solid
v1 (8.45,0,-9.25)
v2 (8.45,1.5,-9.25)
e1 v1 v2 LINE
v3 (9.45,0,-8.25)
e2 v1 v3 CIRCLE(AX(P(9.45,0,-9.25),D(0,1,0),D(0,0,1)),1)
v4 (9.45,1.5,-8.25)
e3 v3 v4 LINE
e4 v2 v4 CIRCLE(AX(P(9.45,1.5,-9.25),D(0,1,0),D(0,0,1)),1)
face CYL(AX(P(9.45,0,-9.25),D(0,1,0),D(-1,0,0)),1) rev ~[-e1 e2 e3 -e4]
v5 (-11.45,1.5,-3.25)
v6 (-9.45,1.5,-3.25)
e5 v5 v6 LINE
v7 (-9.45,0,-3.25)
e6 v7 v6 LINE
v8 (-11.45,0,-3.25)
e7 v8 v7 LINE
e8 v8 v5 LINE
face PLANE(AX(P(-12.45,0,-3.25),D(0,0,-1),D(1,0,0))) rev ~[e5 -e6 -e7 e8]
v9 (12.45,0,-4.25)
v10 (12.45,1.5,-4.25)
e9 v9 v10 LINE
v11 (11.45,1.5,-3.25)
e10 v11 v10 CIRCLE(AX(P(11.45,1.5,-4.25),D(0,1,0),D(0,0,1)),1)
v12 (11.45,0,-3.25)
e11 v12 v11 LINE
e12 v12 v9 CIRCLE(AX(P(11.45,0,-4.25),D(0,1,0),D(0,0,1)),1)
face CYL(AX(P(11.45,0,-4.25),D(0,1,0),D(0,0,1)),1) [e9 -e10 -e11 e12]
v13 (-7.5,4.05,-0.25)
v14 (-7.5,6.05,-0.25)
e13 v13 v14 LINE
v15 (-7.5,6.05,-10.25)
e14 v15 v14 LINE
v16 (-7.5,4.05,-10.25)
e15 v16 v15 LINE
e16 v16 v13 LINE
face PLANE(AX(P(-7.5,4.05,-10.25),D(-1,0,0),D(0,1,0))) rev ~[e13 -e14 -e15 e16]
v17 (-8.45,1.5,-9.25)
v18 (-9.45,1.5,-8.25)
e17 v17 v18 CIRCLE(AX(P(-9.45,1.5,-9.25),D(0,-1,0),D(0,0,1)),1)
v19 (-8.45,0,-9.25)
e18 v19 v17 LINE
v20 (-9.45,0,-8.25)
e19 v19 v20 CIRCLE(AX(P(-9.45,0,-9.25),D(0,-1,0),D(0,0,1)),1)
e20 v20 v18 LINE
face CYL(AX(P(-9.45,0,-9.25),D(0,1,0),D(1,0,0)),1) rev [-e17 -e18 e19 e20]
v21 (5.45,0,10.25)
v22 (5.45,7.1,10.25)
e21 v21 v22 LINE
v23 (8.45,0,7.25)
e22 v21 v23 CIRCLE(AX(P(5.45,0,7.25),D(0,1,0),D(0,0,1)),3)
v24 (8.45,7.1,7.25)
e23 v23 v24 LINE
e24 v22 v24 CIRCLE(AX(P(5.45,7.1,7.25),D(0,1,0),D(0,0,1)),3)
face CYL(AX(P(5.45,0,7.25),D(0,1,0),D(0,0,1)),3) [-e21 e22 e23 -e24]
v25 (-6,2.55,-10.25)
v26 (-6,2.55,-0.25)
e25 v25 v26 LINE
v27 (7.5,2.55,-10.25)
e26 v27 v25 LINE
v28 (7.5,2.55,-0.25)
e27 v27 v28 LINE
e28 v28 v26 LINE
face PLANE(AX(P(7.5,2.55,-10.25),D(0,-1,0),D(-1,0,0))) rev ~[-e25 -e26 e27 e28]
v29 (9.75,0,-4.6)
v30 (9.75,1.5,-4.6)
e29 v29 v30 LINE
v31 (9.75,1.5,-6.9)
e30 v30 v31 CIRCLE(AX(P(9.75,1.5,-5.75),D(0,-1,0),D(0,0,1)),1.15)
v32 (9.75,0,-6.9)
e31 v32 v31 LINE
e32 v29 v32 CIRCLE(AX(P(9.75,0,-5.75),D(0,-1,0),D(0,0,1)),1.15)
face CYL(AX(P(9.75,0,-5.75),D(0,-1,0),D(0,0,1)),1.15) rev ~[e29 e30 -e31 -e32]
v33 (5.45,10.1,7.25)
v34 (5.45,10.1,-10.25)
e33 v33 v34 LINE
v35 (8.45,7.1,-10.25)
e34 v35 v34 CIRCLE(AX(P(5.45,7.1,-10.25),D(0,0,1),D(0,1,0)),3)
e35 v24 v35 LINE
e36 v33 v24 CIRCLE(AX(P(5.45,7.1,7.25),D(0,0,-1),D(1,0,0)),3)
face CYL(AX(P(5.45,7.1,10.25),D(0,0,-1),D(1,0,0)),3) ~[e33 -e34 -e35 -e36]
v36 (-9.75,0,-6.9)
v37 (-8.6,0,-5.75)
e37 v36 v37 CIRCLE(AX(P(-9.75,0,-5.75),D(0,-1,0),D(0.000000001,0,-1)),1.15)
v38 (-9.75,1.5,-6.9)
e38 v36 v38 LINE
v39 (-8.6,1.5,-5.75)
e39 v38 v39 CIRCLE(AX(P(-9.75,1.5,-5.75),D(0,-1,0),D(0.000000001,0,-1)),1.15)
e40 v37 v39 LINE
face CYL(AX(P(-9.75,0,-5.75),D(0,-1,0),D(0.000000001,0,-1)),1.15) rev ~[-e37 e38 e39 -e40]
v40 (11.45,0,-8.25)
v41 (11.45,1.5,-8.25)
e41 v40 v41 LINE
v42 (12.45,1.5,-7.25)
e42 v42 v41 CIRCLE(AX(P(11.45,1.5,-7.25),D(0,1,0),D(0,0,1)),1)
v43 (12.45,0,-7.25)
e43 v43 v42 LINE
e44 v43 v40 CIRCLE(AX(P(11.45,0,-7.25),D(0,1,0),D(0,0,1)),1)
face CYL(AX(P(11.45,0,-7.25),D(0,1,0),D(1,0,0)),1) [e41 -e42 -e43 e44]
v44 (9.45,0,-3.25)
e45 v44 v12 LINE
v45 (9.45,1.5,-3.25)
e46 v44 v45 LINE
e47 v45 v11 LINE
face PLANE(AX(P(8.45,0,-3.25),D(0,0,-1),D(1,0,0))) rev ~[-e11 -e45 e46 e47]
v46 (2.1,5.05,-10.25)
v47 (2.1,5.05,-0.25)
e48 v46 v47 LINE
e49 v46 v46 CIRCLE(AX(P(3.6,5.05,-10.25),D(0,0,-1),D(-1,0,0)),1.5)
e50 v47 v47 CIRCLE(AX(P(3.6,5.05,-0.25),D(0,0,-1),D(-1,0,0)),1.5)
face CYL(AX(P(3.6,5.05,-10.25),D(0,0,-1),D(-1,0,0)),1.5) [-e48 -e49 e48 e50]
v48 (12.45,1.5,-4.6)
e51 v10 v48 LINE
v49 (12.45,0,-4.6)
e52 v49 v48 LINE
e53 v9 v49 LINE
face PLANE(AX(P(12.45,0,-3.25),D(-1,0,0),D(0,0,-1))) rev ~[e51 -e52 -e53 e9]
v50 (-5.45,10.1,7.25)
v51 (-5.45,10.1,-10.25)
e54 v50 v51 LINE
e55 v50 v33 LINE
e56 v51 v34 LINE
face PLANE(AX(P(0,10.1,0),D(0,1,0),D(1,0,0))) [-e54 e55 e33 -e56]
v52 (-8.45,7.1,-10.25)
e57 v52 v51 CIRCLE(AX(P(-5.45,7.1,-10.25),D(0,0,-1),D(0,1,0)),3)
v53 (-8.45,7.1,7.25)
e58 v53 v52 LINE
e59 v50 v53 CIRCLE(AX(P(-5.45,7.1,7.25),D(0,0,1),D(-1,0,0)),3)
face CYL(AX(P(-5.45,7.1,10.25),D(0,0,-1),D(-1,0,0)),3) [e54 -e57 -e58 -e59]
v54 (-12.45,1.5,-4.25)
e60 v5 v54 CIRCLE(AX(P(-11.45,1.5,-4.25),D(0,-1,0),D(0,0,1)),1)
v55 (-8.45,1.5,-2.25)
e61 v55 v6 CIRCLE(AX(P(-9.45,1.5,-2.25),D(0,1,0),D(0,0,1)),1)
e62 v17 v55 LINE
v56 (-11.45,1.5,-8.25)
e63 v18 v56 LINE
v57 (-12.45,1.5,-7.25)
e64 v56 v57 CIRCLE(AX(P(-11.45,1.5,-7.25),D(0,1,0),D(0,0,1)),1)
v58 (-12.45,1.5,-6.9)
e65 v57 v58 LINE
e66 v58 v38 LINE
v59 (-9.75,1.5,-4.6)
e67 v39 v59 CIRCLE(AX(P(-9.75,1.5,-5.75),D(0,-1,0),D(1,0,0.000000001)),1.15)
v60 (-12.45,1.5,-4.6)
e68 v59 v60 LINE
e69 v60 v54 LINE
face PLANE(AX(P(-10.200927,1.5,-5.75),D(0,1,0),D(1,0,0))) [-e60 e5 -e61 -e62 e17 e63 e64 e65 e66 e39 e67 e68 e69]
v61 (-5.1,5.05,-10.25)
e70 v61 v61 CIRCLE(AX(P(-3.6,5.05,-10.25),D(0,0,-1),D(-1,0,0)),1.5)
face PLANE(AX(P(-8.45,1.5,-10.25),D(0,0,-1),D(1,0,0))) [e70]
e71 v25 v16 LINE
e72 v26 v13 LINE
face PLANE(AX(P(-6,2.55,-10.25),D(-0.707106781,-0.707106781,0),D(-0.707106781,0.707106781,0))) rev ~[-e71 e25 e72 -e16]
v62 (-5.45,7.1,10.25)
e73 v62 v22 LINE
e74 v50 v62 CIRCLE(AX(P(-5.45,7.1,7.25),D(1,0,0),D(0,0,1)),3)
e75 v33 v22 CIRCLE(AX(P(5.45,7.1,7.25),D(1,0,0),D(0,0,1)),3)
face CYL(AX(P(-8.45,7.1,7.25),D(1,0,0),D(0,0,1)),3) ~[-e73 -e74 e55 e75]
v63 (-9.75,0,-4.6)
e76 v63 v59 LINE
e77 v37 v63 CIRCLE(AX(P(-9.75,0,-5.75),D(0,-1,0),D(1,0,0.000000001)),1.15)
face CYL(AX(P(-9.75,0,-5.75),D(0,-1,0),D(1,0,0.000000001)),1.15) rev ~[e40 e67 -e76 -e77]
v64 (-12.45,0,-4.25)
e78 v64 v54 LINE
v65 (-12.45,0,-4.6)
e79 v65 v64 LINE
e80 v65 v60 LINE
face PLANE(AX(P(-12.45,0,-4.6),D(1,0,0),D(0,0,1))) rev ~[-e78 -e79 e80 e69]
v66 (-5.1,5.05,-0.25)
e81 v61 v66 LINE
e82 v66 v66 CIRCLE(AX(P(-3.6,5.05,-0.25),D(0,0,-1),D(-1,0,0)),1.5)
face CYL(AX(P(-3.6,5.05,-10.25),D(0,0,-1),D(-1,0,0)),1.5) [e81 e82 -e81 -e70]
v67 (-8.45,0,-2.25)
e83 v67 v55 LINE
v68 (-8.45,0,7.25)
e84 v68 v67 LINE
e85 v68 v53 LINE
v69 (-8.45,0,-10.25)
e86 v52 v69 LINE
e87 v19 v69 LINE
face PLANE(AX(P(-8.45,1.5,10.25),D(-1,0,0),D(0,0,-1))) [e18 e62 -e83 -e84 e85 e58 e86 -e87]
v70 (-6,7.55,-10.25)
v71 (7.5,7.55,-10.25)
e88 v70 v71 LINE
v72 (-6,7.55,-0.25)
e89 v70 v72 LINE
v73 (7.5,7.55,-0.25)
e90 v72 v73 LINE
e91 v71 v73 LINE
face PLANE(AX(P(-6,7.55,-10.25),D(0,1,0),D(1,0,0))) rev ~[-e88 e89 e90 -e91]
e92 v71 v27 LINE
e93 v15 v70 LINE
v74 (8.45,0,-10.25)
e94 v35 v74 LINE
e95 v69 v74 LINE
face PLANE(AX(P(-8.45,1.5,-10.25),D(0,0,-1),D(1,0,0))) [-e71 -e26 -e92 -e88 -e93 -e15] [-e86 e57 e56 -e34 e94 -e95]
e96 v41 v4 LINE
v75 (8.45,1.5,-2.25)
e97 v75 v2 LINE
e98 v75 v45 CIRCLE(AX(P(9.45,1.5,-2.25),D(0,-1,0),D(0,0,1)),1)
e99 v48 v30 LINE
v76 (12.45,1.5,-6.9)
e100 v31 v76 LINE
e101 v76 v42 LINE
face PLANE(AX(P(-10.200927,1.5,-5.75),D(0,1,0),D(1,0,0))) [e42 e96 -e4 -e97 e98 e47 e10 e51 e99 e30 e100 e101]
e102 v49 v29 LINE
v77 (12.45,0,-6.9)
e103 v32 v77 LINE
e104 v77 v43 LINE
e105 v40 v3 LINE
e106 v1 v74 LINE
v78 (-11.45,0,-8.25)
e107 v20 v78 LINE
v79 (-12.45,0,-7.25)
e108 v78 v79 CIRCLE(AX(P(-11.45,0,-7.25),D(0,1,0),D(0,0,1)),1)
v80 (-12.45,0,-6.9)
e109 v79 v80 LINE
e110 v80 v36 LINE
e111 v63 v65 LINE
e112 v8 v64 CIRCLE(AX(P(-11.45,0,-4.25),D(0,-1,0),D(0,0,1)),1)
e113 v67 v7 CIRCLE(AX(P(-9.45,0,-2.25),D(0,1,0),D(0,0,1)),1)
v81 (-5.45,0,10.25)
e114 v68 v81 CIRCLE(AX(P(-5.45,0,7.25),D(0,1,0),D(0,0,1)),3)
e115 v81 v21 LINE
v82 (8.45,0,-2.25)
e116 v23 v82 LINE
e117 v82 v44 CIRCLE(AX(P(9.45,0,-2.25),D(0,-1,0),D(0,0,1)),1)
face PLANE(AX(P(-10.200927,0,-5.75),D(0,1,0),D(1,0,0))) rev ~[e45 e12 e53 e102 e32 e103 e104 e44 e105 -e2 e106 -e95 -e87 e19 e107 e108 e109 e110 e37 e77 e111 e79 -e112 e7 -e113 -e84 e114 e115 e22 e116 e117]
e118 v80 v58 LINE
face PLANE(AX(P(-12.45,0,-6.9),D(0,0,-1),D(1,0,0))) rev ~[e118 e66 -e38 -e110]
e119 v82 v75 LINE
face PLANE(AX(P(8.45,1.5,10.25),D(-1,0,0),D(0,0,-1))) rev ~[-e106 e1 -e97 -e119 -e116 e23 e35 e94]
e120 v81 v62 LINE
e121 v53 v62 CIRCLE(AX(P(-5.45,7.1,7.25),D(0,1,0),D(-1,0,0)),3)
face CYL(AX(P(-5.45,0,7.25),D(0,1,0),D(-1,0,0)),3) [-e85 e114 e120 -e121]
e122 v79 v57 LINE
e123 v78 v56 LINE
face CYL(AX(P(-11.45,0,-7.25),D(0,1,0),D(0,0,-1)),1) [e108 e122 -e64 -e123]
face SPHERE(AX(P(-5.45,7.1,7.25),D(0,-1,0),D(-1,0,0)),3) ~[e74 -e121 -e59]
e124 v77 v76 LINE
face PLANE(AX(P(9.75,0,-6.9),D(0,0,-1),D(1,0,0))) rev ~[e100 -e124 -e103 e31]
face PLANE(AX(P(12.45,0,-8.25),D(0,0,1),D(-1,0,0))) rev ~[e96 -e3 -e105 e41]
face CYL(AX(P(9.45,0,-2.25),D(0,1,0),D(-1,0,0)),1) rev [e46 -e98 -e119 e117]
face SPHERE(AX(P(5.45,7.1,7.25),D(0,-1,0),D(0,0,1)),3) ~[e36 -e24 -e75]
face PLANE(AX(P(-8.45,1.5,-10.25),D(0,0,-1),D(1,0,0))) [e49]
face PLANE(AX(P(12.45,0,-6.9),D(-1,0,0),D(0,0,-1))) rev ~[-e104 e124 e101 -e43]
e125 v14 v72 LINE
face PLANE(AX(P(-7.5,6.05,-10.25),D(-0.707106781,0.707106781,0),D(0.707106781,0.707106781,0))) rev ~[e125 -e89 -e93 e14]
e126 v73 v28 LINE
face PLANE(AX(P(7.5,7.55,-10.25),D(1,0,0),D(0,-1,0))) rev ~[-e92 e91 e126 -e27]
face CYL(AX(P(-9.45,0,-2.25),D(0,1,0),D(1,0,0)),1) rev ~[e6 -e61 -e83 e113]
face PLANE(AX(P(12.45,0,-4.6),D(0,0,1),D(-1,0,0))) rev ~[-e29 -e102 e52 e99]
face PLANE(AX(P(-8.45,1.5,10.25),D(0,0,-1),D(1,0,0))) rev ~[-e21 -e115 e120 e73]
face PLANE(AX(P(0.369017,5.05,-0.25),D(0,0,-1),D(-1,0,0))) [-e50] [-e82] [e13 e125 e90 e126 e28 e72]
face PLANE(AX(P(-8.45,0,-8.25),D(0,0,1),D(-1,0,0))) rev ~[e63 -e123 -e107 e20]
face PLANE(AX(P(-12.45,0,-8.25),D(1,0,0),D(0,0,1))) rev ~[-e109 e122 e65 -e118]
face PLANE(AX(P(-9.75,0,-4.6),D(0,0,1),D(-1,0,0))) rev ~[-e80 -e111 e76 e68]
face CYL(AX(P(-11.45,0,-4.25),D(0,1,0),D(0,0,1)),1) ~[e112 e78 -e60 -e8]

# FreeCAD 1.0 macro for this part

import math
import FreeCAD as App
import Part
import Sketcher
Q = App.Units.Quantity


def edges_at(feature, points):
    """Names of the edges that pass closest to the given points."""
    edges = feature.Shape.Edges
    near = lambda p: min(range(len(edges)), key=lambda i: edges[i].distToShape(Part.Vertex(*p))[0])
    return sorted({f"Edge{near(p) + 1}" for p in points})

doc = App.newDocument("Part")
params = doc.addObject("Spreadsheet::Sheet", "Params")
for row, (alias, value) in enumerate([
    ("sketch1_width", "4 mm"),
    ("sketch1_height", "2 mm"),
    ("sketch1_radius", "1.15 mm"),
    ("sketch1_width2", "2.7 mm"),
    ("sketch1_width3", "16.9 mm"),
    ("pad1_length", "1.5 mm"),
    ("sketch2_width", "16.9 mm"),
    ("sketch2_height", "20.5 mm"),
    ("pad2_length", "8.6 mm"),
    ("fillet_radius", "3 mm"),
    ("fillet2_radius", "1 mm"),
    ("sketch3_diameter", "3 mm"),
    ("sketch3_height", "2 mm"),
    ("sketch3_height2", "5 mm"),
    ("sketch3_width", "13.5 mm"),
    ("pocket1_length", "10 mm"),
], start=1):
    params.set(f"A{row}", alias)
    params.set(f"B{row}", "=" + value)
    params.setAlias(f"B{row}", alias)

body = doc.addObject("PartDesign::Body", "Body")

sketch1 = body.newObject("Sketcher::SketchObject", "Sketch")
sketch1.AttachmentSupport = (doc.getObject("XZ_Plane"), [""])
sketch1.MapMode = "FlatFace"
sketch1.addGeometry([
    Part.LineSegment(App.Vector(-8.4, -8.2, 0), App.Vector(-12.4, -8.2, 0)),
    Part.LineSegment(App.Vector(-12.4, -8.2, 0), App.Vector(-12.4, -6.9, 0)),
    Part.LineSegment(App.Vector(-12.4, -6.9, 0), App.Vector(-9.8, -6.9, 0)),
    Part.ArcOfCircle(Part.Circle(App.Vector(-9.8, -5.7, 0), App.Vector(0, 0, 1), 1.2), math.radians(-90), math.radians(0)),
    Part.ArcOfCircle(Part.Circle(App.Vector(-9.8, -5.8, 0), App.Vector(0, 0, 1), 1.2), math.radians(0), math.radians(90)),
    Part.LineSegment(App.Vector(-9.8, -4.6, 0), App.Vector(-12.4, -4.6, 0)),
    Part.LineSegment(App.Vector(-12.4, -4.6, 0), App.Vector(-12.4, -3.2, 0)),
    Part.LineSegment(App.Vector(-12.4, -3.2, 0), App.Vector(-8.4, -3.2, 0)),
    Part.LineSegment(App.Vector(-8.4, -3.2, 0), App.Vector(-8.4, 10.2, 0)),
    Part.LineSegment(App.Vector(-8.4, 10.2, 0), App.Vector(8.4, 10.2, 0)),
    Part.LineSegment(App.Vector(8.4, 10.2, 0), App.Vector(8.4, -3.2, 0)),
    Part.LineSegment(App.Vector(8.4, -3.2, 0), App.Vector(12.4, -3.2, 0)),
    Part.LineSegment(App.Vector(12.4, -3.2, 0), App.Vector(12.4, -4.6, 0)),
    Part.LineSegment(App.Vector(12.4, -4.6, 0), App.Vector(9.8, -4.6, 0)),
    Part.ArcOfCircle(Part.Circle(App.Vector(9.8, -5.8, 0), App.Vector(0, 0, 1), 1.1), math.radians(90), math.radians(270)),
    Part.LineSegment(App.Vector(9.8, -6.9, 0), App.Vector(12.4, -6.9, 0)),
    Part.LineSegment(App.Vector(12.4, -6.9, 0), App.Vector(12.4, -8.2, 0)),
    Part.LineSegment(App.Vector(12.4, -8.2, 0), App.Vector(8.4, -8.2, 0)),
    Part.LineSegment(App.Vector(8.4, -8.2, 0), App.Vector(8.4, -10.2, 0)),
    Part.LineSegment(App.Vector(8.4, -10.2, 0), App.Vector(-8.4, -10.2, 0)),
    Part.LineSegment(App.Vector(-8.4, -10.2, 0), App.Vector(-8.4, -8.2, 0)),
], False)
sketch1.addConstraint([
    Sketcher.Constraint("Coincident", 0, 2, 1, 1),
    Sketcher.Constraint("Coincident", 1, 2, 2, 1),
    Sketcher.Constraint("Tangent", 2, 2, 3, 1),
    Sketcher.Constraint("Tangent", 3, 2, 4, 1),
    Sketcher.Constraint("Tangent", 4, 2, 5, 1),
    Sketcher.Constraint("Coincident", 5, 2, 6, 1),
    Sketcher.Constraint("Coincident", 6, 2, 7, 1),
    Sketcher.Constraint("Coincident", 7, 2, 8, 1),
    Sketcher.Constraint("Coincident", 8, 2, 9, 1),
    Sketcher.Constraint("Coincident", 9, 2, 10, 1),
    Sketcher.Constraint("Coincident", 10, 2, 11, 1),
    Sketcher.Constraint("Coincident", 11, 2, 12, 1),
    Sketcher.Constraint("Coincident", 12, 2, 13, 1),
    Sketcher.Constraint("Tangent", 13, 2, 14, 1),
    Sketcher.Constraint("Tangent", 14, 2, 15, 1),
    Sketcher.Constraint("Coincident", 15, 2, 16, 1),
    Sketcher.Constraint("Coincident", 16, 2, 17, 1),
    Sketcher.Constraint("Coincident", 17, 2, 18, 1),
    Sketcher.Constraint("Coincident", 18, 2, 19, 1),
    Sketcher.Constraint("Coincident", 19, 2, 20, 1),
    Sketcher.Constraint("Coincident", 20, 2, 0, 1),
    Sketcher.Constraint("Horizontal", 0),
    Sketcher.Constraint("Vertical", 1),
    Sketcher.Constraint("Horizontal", 2),
    Sketcher.Constraint("Horizontal", 5),
    Sketcher.Constraint("Vertical", 6),
    Sketcher.Constraint("Horizontal", 7),
    Sketcher.Constraint("Vertical", 8),
    Sketcher.Constraint("Horizontal", 9),
    Sketcher.Constraint("Vertical", 10),
    Sketcher.Constraint("Horizontal", 11),
    Sketcher.Constraint("Vertical", 12),
    Sketcher.Constraint("Horizontal", 13),
    Sketcher.Constraint("Horizontal", 15),
    Sketcher.Constraint("Vertical", 16),
    Sketcher.Constraint("Horizontal", 17),
    Sketcher.Constraint("Vertical", 18),
    Sketcher.Constraint("Horizontal", 19),
    Sketcher.Constraint("Vertical", 20),
    Sketcher.Constraint("Equal", 3, 4),
    Sketcher.Constraint("Equal", 4, 14),
    Sketcher.Constraint("Symmetric", 8, 2, 18, 2, -1, 1),
    Sketcher.Constraint("Symmetric", 3, 3, 14, 3, -2),
    Sketcher.Constraint("Symmetric", 7, 2, 10, 2, -2),
    Sketcher.Constraint("Symmetric", 0, 2, 16, 2, -2),
    Sketcher.Constraint("Horizontal", 14, 3, 3, 2),
    Sketcher.Constraint("Vertical", 1, 2, 5, 2),
    Sketcher.Constraint("Vertical", 12, 2, 15, 2),
    Sketcher.Constraint("Vertical", 8, 2, 19, 2),
    Sketcher.Constraint("Equal", 1, 6),
    Sketcher.Constraint("DistanceX", 0, 2, 0, 1, Q("4 mm")),
    Sketcher.Constraint("DistanceY", 18, 2, 18, 1, Q("2 mm")),
    Sketcher.Constraint("Radius", 3, Q("1.15 mm")),
    Sketcher.Constraint("DistanceX", 2, 1, 2, 2, Q("2.7 mm")),
    Sketcher.Constraint("DistanceX", 9, 1, 9, 2, Q("16.9 mm")),
    Sketcher.Constraint("DistanceY", 8, 1, 8, 2, Q("13.5 mm")),
    Sketcher.Constraint("DistanceY", 3, 2, 8, 2, Q("16 mm")),
])
sketch1.setExpression("Constraints[50]", "Params.sketch1_width")
sketch1.setExpression("Constraints[51]", "Params.sketch1_height")
sketch1.setExpression("Constraints[52]", "Params.sketch1_radius")
sketch1.setExpression("Constraints[53]", "Params.sketch1_width2")
sketch1.setExpression("Constraints[54]", "Params.sketch1_width3")
pad1 = body.newObject("PartDesign::Pad", "Pad")
pad1.Profile = sketch1
pad1.setExpression("Length", "Params.pad1_length")
pad1.Reversed = True

sketch2 = body.newObject("Sketcher::SketchObject", "Sketch001")
sketch2.AttachmentSupport = (doc.getObject("XZ_Plane"), [""])
sketch2.MapMode = "FlatFace"
sketch2.AttachmentOffset = App.Placement(App.Vector(0, 0, -1.5), App.Rotation())
sketch2.addGeometry([
    Part.LineSegment(App.Vector(-8, -10, 0), App.Vector(-8, 10, 0)),
    Part.LineSegment(App.Vector(-8, 10, 0), App.Vector(8, 10, 0)),
    Part.LineSegment(App.Vector(8, 10, 0), App.Vector(8, -10, 0)),
    Part.LineSegment(App.Vector(8, -10, 0), App.Vector(-8, -10, 0)),
], False)
sketch2.addConstraint([
    Sketcher.Constraint("Coincident", 0, 2, 1, 1),
    Sketcher.Constraint("Coincident", 1, 2, 2, 1),
    Sketcher.Constraint("Coincident", 2, 2, 3, 1),
    Sketcher.Constraint("Coincident", 3, 2, 0, 1),
    Sketcher.Constraint("Vertical", 0),
    Sketcher.Constraint("Horizontal", 1),
    Sketcher.Constraint("Vertical", 2),
    Sketcher.Constraint("Horizontal", 3),
    Sketcher.Constraint("Symmetric", 0, 2, 2, 2, -1, 1),
    Sketcher.Constraint("DistanceX", 1, 1, 1, 2, Q("16.9 mm")),
    Sketcher.Constraint("DistanceY", 0, 1, 0, 2, Q("20.5 mm")),
])
sketch2.setExpression("Constraints[9]", "Params.sketch2_width")
sketch2.setExpression("Constraints[10]", "Params.sketch2_height")
pad2 = body.newObject("PartDesign::Pad", "Pad001")
pad2.Profile = sketch2
pad2.setExpression("Length", "Params.pad2_length")
pad2.Reversed = True
doc.recompute()

fillet = body.newObject("PartDesign::Fillet", "Fillet")
fillet.Base = (pad2, edges_at(pad2, [
    (8.45, 5.05, 10.25),
    (-8.45, 5.05, 10.25),
    (-8.45, 10.1, 0),
    (0, 10.1, 10.25),
    (8.45, 10.1, 0),
]))
fillet.setExpression("Radius", "Params.fillet_radius")
doc.recompute()

fillet2 = body.newObject("PartDesign::Fillet", "Fillet001")
fillet2.Base = (fillet, edges_at(fillet, [
    (-12.45, 0.75, -8.25),
    (-8.45, 0.75, -8.25),
    (8.45, 0.75, -8.25),
    (12.45, 0.75, -8.25),
    (12.45, 0.75, -3.25),
    (8.45, 0.75, -3.25),
    (-8.45, 0.75, -3.25),
    (-12.45, 0.75, -3.25),
]))
fillet2.setExpression("Radius", "Params.fillet2_radius")

sketch3 = body.newObject("Sketcher::SketchObject", "Sketch002")
sketch3.AttachmentSupport = (doc.getObject("XY_Plane"), [""])
sketch3.MapMode = "FlatFace"
sketch3.AttachmentOffset = App.Placement(App.Vector(0, 0, -10.25), App.Rotation())
sketch3.addGeometry([
    Part.LineSegment(App.Vector(-7.5, 4, 0), App.Vector(-7.5, 6, 0)),
    Part.LineSegment(App.Vector(-7.5, 6, 0), App.Vector(-6, 7.5, 0)),
    Part.LineSegment(App.Vector(-6, 7.5, 0), App.Vector(7.5, 7.5, 0)),
    Part.LineSegment(App.Vector(7.5, 7.5, 0), App.Vector(7.5, 2.5, 0)),
    Part.LineSegment(App.Vector(7.5, 2.5, 0), App.Vector(-6, 2.5, 0)),
    Part.LineSegment(App.Vector(-6, 2.5, 0), App.Vector(-7.5, 4, 0)),
    Part.Circle(App.Vector(3.6, 5, 0), App.Vector(0, 0, 1), 1.5),
    Part.Circle(App.Vector(-3.6, 5, 0), App.Vector(0, 0, 1), 1.5),
], False)
sketch3.addConstraint([
    Sketcher.Constraint("Coincident", 0, 2, 1, 1),
    Sketcher.Constraint("Coincident", 1, 2, 2, 1),
    Sketcher.Constraint("Coincident", 2, 2, 3, 1),
    Sketcher.Constraint("Coincident", 3, 2, 4, 1),
    Sketcher.Constraint("Coincident", 4, 2, 5, 1),
    Sketcher.Constraint("Coincident", 5, 2, 0, 1),
    Sketcher.Constraint("Vertical", 0),
    Sketcher.Constraint("Horizontal", 2),
    Sketcher.Constraint("Vertical", 3),
    Sketcher.Constraint("Horizontal", 4),
    Sketcher.Constraint("Equal", 6, 7),
    Sketcher.Constraint("Symmetric", 6, 3, 7, 3, -2),
    Sketcher.Constraint("Perpendicular", 1, 5),
    Sketcher.Constraint("Vertical", 1, 2, 4, 2),
    Sketcher.Constraint("Equal", 1, 5),
    Sketcher.Constraint("Diameter", 6, Q("3 mm")),
    Sketcher.Constraint("DistanceY", 0, 1, 0, 2, Q("2 mm")),
    Sketcher.Constraint("DistanceY", 3, 2, 3, 1, Q("5 mm")),
    Sketcher.Constraint("DistanceX", 2, 1, 2, 2, Q("13.5 mm")),
    Sketcher.Constraint("DistanceX", 1, 2, -1, 1, Q("6 mm")),
    Sketcher.Constraint("DistanceY", 7, 3, 0, 2, Q("1 mm")),
    Sketcher.Constraint("DistanceX", -1, 1, 6, 3, Q("3.6 mm")),
    Sketcher.Constraint("DistanceY", -1, 1, 6, 3, Q("5.05 mm")),
])
sketch3.setExpression("Constraints[15]", "Params.sketch3_diameter")
sketch3.setExpression("Constraints[16]", "Params.sketch3_height")
sketch3.setExpression("Constraints[17]", "Params.sketch3_height2")
sketch3.setExpression("Constraints[18]", "Params.sketch3_width")
pocket1 = body.newObject("PartDesign::Pocket", "Pocket")
pocket1.Profile = sketch3
pocket1.setExpression("Length", "Params.pocket1_length")
pocket1.Reversed = True

doc.recompute()
